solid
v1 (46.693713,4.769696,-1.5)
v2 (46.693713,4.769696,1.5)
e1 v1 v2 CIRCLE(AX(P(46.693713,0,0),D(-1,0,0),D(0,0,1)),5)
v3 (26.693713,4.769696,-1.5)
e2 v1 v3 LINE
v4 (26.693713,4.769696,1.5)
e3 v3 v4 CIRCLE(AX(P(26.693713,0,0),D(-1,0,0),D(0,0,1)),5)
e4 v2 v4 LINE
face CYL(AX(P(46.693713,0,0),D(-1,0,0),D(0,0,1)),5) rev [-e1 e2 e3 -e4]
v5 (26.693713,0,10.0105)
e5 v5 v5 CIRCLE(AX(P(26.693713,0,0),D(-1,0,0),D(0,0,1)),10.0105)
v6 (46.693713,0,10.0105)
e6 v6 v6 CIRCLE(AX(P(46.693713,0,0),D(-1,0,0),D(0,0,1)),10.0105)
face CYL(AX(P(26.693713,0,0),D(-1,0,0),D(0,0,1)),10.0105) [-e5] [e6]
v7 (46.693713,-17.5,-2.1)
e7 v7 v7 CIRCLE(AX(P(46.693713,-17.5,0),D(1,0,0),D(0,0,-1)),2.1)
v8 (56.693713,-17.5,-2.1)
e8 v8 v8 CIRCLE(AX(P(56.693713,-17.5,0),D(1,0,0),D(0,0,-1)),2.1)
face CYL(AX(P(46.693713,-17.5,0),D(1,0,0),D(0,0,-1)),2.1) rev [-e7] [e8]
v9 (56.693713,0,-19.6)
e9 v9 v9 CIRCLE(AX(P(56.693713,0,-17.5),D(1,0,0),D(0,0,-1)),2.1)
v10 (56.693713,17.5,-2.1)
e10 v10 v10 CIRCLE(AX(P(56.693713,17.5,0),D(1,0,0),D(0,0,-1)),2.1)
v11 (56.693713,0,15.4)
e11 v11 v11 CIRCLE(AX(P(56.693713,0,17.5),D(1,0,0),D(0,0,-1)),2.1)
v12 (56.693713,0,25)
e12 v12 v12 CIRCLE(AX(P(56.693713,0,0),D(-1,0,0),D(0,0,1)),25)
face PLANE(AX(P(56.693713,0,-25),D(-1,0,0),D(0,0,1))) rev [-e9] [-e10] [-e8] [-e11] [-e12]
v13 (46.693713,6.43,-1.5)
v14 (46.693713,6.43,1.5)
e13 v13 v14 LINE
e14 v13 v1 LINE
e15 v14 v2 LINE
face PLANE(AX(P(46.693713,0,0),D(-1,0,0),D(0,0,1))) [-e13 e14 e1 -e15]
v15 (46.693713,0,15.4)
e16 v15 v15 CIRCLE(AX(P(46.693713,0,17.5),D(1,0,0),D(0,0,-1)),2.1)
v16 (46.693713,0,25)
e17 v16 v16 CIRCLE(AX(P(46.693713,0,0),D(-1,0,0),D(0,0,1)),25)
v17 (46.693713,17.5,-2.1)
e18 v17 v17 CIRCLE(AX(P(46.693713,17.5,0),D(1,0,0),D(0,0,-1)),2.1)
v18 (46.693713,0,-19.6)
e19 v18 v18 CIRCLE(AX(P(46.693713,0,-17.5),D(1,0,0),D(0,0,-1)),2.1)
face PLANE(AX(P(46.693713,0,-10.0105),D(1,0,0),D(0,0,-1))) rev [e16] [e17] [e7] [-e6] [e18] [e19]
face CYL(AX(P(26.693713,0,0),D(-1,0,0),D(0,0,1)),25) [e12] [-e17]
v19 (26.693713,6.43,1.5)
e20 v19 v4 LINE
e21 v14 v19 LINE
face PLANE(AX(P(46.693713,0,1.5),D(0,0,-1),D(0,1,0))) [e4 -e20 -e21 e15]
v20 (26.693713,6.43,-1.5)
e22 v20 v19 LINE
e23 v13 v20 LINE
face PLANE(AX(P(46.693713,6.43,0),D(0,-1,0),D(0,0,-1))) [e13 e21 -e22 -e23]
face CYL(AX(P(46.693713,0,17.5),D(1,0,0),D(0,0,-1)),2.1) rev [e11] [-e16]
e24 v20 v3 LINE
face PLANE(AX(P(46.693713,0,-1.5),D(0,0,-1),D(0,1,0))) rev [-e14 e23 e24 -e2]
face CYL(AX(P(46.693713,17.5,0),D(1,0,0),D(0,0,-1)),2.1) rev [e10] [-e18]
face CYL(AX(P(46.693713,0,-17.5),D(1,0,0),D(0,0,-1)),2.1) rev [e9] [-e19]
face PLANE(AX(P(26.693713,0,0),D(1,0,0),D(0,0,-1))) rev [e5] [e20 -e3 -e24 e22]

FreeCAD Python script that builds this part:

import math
import FreeCAD as App
import Part
import Sketcher

V = App.Vector
Q = App.Units.Quantity

doc = App.newDocument("Part")
body = doc.addObject("PartDesign::Body", "Body")

# Sketch on XZ plane
sketch1 = body.newObject("Sketcher::SketchObject", "Sketch")
sketch1.AttachmentSupport = (doc.getObject("XZ_Plane"), [""])
sketch1.MapMode = "FlatFace"
sketch1.addGeometry([
    Part.LineSegment(V(27, -10, 0), V(27, 0, 0)),  # 0
    Part.LineSegment(V(27, 0, 0), V(57, 0, 0)),  # 1
    Part.LineSegment(V(57, 0, 0), V(57, -25, 0)),  # 2
    Part.LineSegment(V(57, -25, 0), V(47, -25, 0)),  # 3
    Part.LineSegment(V(47, -25, 0), V(47, -10, 0)),  # 4
    Part.LineSegment(V(47, -10, 0), V(27, -10, 0)),  # 5
], False)
sketch1.addConstraint([
    Sketcher.Constraint("Coincident", 0, 2, 1, 1),
    Sketcher.Constraint("Coincident", 1, 2, 2, 1),
    Sketcher.Constraint("Coincident", 2, 2, 3, 1),
    Sketcher.Constraint("Coincident", 3, 2, 4, 1),
    Sketcher.Constraint("Coincident", 4, 2, 5, 1),
    Sketcher.Constraint("Coincident", 5, 2, 0, 1),
    Sketcher.Constraint("Vertical", 0),
    Sketcher.Constraint("Horizontal", 1),
    Sketcher.Constraint("Vertical", 2),
    Sketcher.Constraint("Horizontal", 3),
    Sketcher.Constraint("Vertical", 4),
    Sketcher.Constraint("Horizontal", 5),
    Sketcher.Constraint("PointOnObject", 0, 2, -1),
    Sketcher.Constraint("DistanceX", 1, 1, 1, 2, Q("30 mm")),
    Sketcher.Constraint("DistanceX", 3, 2, 3, 1, Q("10 mm")),
    Sketcher.Constraint("DistanceY", 2, 2, 2, 1, Q("25 mm")),
    Sketcher.Constraint("DistanceY", 0, 1, 0, 2, Q("10.0105 mm")),
    Sketcher.Constraint("DistanceX", -1, 1, 0, 2, Q("26.693713 mm")),
])
revolution = body.newObject("PartDesign::Revolution", "Revolution")
revolution.Profile = sketch1
revolution.ReferenceAxis = (sketch1, ["H_Axis"])
revolution.Angle = 360

# Sketch on YZ plane
sketch2 = body.newObject("Sketcher::SketchObject", "Sketch001")
sketch2.AttachmentSupport = (doc.getObject("YZ_Plane"), [""])
sketch2.MapMode = "FlatFace"
sketch2.AttachmentOffset = App.Placement(V(0, 0, 26.693713), App.Rotation())
sketch2.addGeometry([
    Part.ArcOfCircle(Part.Circle(V(0, 0, 0), V(0, 0, 1), 5), math.radians(90), math.radians(343)),  # 0
    Part.ArcOfCircle(Part.Circle(V(0, 0, 0), V(0, 0, 1), 5), math.radians(17), math.radians(90)),  # 1
    Part.LineSegment(V(4.8, 1.5, 0), V(6.4, 1.5, 0)),  # 2
    Part.LineSegment(V(6.4, 1.5, 0), V(6.4, -1.5, 0)),  # 3
    Part.LineSegment(V(6.4, -1.5, 0), V(4.8, -1.5, 0)),  # 4
], False)
sketch2.addConstraint([
    Sketcher.Constraint("Tangent", 0, 1, 1, 2),
    Sketcher.Constraint("Coincident", 1, 1, 2, 1),
    Sketcher.Constraint("Coincident", 2, 2, 3, 1),
    Sketcher.Constraint("Coincident", 3, 2, 4, 1),
    Sketcher.Constraint("Coincident", 4, 2, 0, 2),
    Sketcher.Constraint("Horizontal", 2),
    Sketcher.Constraint("Vertical", 3),
    Sketcher.Constraint("Horizontal", 4),
    Sketcher.Constraint("Coincident", 0, 3, -1, 1),
    Sketcher.Constraint("Equal", 0, 1),
    Sketcher.Constraint("PointOnObject", 0, 1, -2),
    Sketcher.Constraint("Vertical", 1, 1, 4, 2),
    Sketcher.Constraint("Radius", 0, Q("5 mm")),
    Sketcher.Constraint("DistanceY", 3, 2, 3, 1, Q("3 mm")),
    Sketcher.Constraint("DistanceX", -1, 1, 2, 2, Q("6.43 mm")),
])
pocket1 = body.newObject("PartDesign::Pocket", "Pocket")
pocket1.Profile = sketch2
pocket1.Length = 20
pocket1.Reversed = True

# Sketch on YZ plane
sketch3 = body.newObject("Sketcher::SketchObject", "Sketch002")
sketch3.AttachmentSupport = (doc.getObject("YZ_Plane"), [""])
sketch3.MapMode = "FlatFace"
sketch3.AttachmentOffset = App.Placement(V(0, 0, 56.693713), App.Rotation())
sketch3.addGeometry([
    Part.Circle(V(17.5, 0, 0), V(0, 0, 1), 2.1),
    Part.Circle(V(0, -17.5, 0), V(0, 0, 1), 2.1),
    Part.Circle(V(-17.5, 0, 0), V(0, 0, 1), 2.1),
    Part.Circle(V(0, 17.5, 0), V(0, 0, 1), 2.1),
], False)
sketch3.addConstraint([
    Sketcher.Constraint("Equal", 0, 1),
    Sketcher.Constraint("Equal", 1, 2),
    Sketcher.Constraint("Equal", 2, 3),
    Sketcher.Constraint("Symmetric", 0, 3, 2, 3, -1, 1),
    Sketcher.Constraint("Symmetric", 1, 3, 3, 3, -1, 1),
    Sketcher.Constraint("PointOnObject", 0, 3, -1),
    Sketcher.Constraint("PointOnObject", 1, 3, -2),
    Sketcher.Constraint("Diameter", 0, Q("4.2 mm")),
    Sketcher.Constraint("DistanceX", 2, 3, 0, 3, Q("35 mm")),
    Sketcher.Constraint("DistanceY", 1, 3, 3, 3, Q("35 mm")),
])
pocket2 = body.newObject("PartDesign::Pocket", "Pocket001")
pocket2.Profile = sketch3
pocket2.Length = 10

doc.recompute()
